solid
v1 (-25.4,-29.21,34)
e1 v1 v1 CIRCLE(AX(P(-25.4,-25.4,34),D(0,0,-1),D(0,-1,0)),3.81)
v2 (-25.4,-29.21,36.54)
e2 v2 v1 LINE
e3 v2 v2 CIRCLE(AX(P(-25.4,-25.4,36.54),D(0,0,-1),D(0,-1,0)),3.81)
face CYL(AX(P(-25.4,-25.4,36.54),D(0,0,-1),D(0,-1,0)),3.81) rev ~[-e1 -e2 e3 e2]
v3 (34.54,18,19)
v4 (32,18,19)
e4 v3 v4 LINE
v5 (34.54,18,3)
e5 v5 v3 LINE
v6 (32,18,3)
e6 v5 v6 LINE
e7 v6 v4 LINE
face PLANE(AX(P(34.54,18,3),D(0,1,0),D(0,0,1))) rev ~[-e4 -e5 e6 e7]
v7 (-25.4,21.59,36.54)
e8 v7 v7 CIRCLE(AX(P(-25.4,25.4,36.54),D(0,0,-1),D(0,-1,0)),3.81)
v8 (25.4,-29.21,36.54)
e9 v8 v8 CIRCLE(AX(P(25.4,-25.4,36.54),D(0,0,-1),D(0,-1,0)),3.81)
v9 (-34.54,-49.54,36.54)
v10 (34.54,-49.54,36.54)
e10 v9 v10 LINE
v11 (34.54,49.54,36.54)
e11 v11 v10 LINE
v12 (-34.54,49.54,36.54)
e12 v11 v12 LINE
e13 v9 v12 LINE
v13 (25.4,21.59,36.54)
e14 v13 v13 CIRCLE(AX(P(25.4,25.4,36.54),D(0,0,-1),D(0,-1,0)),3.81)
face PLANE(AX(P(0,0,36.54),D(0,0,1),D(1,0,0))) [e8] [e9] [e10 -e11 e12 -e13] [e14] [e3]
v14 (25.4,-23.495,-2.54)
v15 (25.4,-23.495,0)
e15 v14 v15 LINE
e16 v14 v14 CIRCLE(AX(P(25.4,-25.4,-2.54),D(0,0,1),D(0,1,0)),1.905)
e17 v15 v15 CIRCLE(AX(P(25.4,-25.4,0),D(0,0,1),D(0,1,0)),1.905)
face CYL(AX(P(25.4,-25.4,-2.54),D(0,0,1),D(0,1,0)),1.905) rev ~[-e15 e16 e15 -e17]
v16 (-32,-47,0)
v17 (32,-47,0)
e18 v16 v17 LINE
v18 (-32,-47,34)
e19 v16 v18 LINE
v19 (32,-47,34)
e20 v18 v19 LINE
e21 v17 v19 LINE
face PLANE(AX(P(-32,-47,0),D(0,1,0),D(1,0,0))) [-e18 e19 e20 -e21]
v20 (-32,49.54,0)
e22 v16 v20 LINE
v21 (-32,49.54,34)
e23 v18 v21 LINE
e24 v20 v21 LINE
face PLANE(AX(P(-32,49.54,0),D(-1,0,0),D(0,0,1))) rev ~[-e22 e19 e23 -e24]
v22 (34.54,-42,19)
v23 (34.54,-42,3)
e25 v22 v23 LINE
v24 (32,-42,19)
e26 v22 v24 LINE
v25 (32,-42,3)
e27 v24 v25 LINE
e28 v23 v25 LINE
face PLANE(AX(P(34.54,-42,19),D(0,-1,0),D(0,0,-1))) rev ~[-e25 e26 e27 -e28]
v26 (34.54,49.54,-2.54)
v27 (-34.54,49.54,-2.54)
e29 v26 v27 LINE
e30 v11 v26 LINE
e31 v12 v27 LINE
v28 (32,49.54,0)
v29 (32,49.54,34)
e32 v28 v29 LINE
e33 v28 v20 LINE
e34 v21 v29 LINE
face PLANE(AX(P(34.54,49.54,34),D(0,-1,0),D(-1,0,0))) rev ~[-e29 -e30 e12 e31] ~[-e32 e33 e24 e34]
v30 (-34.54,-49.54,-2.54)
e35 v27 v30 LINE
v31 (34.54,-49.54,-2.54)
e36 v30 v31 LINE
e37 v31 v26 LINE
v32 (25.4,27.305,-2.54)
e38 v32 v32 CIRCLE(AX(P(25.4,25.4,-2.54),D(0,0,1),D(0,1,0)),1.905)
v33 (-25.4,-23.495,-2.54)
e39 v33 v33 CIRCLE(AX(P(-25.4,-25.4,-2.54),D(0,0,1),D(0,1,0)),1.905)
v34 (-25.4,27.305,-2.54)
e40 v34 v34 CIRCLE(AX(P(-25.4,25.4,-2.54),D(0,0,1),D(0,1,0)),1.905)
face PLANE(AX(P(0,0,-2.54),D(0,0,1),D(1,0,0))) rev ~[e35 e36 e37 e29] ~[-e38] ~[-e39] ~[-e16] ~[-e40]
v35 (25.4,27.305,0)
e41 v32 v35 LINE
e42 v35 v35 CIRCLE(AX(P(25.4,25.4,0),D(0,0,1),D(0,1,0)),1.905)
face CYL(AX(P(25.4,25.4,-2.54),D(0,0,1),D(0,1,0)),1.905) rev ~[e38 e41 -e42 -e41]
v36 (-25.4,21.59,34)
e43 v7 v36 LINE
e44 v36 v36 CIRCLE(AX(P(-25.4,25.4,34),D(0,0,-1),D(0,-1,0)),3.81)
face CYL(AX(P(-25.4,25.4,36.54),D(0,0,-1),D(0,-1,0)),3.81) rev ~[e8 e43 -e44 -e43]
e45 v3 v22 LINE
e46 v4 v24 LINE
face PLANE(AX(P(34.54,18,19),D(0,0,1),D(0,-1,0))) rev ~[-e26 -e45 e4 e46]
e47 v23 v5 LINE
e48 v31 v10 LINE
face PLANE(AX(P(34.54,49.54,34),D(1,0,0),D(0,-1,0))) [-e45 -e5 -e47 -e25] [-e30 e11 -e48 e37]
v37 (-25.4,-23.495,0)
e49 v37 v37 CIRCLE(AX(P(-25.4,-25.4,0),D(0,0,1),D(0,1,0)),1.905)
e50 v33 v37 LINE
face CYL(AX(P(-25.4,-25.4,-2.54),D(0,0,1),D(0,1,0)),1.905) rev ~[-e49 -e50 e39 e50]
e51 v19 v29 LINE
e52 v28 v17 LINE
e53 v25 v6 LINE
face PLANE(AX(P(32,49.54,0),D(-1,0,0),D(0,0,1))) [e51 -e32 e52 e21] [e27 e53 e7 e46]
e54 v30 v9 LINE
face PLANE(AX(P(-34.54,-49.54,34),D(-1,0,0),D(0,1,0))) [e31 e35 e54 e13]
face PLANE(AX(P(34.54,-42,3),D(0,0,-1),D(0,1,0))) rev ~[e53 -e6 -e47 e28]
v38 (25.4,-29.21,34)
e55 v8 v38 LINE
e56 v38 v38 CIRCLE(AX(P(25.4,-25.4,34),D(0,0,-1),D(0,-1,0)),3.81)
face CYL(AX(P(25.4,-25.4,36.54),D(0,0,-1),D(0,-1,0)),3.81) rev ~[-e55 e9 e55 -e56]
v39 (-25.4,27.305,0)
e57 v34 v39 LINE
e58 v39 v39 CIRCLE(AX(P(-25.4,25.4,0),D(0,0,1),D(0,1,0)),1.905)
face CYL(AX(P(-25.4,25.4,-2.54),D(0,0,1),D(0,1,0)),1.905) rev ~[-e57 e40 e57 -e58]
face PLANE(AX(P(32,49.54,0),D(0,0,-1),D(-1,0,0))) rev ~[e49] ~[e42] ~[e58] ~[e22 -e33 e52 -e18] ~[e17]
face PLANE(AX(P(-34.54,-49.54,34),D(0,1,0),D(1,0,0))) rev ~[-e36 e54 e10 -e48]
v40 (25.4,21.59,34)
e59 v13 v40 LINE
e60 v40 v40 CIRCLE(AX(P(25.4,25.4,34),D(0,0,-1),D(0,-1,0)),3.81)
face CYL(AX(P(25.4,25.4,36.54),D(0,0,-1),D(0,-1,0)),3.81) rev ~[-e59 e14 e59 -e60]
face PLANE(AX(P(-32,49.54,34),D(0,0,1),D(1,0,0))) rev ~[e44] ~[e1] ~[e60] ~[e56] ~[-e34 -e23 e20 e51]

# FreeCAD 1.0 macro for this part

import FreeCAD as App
import Part
import Sketcher
from FreeCAD import Vector
Q = App.Units.Quantity

doc = App.newDocument("Part")
params = doc.addObject("Spreadsheet::Sheet", "Params")
for row, (alias, value) in enumerate([
    ("sketch1_width", "69.08 mm"),
    ("sketch1_height", "99.08 mm"),
    ("pad1_length", "2.54 mm"),
    ("sketch2_width", "64 mm"),
    ("sketch2_height", "94 mm"),
    ("sketch2_width2", "69.08 mm"),
    ("sketch2_height2", "99.08 mm"),
    ("pad2_length", "34 mm"),
    ("sketch3_width", "69.08 mm"),
    ("sketch3_height", "99.08 mm"),
    ("pad3_length", "2.54 mm"),
    ("sketch4_width", "64 mm"),
    ("sketch4_height", "34 mm"),
    ("pocket1_length", "2.54 mm"),
    ("sketch5_width", "60 mm"),
    ("sketch5_height", "16 mm"),
    ("pocket2_length", "2.54 mm"),
    ("sketch6_diameter", "3.81 mm"),
    ("hole_diameter", "3.81 mm"),
    ("sketch7_diameter", "7.62 mm"),
    ("hole2_diameter", "7.62 mm"),
    ("hole2_depth", "2.54 mm"),
], start=1):
    params.set(f"A{row}", alias)
    params.set(f"B{row}", "=" + value)
    params.setAlias(f"B{row}", alias)

body = doc.addObject("PartDesign::Body", "Body")

# Sketch on XY plane
sketch1 = doc.addObject("Sketcher::SketchObject", "Sketch")
body.addObject(sketch1)
sketch1.AttachmentSupport = (doc.XY_Plane, [""])
sketch1.MapMode = "FlatFace"
sketch1.addGeometry([
    Part.LineSegment(Vector(-35, 50, 0), Vector(-35, -50, 0)),
    Part.LineSegment(Vector(-35, -50, 0), Vector(35, -50, 0)),
    Part.LineSegment(Vector(35, -50, 0), Vector(35, 50, 0)),
    Part.LineSegment(Vector(35, 50, 0), Vector(-35, 50, 0)),
], False)
sketch1.addConstraint([
    Sketcher.Constraint("Coincident", 0, 2, 1, 1),
    Sketcher.Constraint("Coincident", 1, 2, 2, 1),
    Sketcher.Constraint("Coincident", 2, 2, 3, 1),
    Sketcher.Constraint("Coincident", 3, 2, 0, 1),
    Sketcher.Constraint("Vertical", 0),
    Sketcher.Constraint("Horizontal", 1),
    Sketcher.Constraint("Vertical", 2),
    Sketcher.Constraint("Horizontal", 3),
    Sketcher.Constraint("Symmetric", 0, 2, 2, 2, -1, 1),
    Sketcher.Constraint("DistanceX", 1, 1, 1, 2, Q("69.08 mm")),
    Sketcher.Constraint("DistanceY", 0, 2, 0, 1, Q("99.08 mm")),
])
sketch1.setExpression("Constraints[9]", "Params.sketch1_width")
sketch1.setExpression("Constraints[10]", "Params.sketch1_height")
pad1 = doc.addObject("PartDesign::Pad", "Pad")
body.addObject(pad1)
pad1.Profile = sketch1
pad1.setExpression("Length", "Params.pad1_length")
pad1.Reversed = True

# Sketch on XY plane
sketch2 = doc.addObject("Sketcher::SketchObject", "Sketch001")
body.addObject(sketch2)
sketch2.AttachmentSupport = (doc.XY_Plane, [""])
sketch2.MapMode = "FlatFace"
sketch2.addGeometry([
    Part.LineSegment(Vector(-35, 50, 0), Vector(-35, -50, 0)),  # 0
    Part.LineSegment(Vector(-35, -50, 0), Vector(35, -50, 0)),  # 1
    Part.LineSegment(Vector(35, -50, 0), Vector(35, 50, 0)),  # 2
    Part.LineSegment(Vector(35, 50, 0), Vector(-35, 50, 0)),  # 3
    Part.LineSegment(Vector(32, -47, 0), Vector(-32, -47, 0)),  # 4
    Part.LineSegment(Vector(-32, -47, 0), Vector(-32, 47, 0)),  # 5
    Part.LineSegment(Vector(-32, 47, 0), Vector(32, 47, 0)),  # 6
    Part.LineSegment(Vector(32, 47, 0), Vector(32, -47, 0)),  # 7
], False)
sketch2.addConstraint([
    Sketcher.Constraint("Coincident", 0, 2, 1, 1),
    Sketcher.Constraint("Coincident", 1, 2, 2, 1),
    Sketcher.Constraint("Coincident", 2, 2, 3, 1),
    Sketcher.Constraint("Coincident", 3, 2, 0, 1),
    Sketcher.Constraint("Coincident", 4, 2, 5, 1),
    Sketcher.Constraint("Coincident", 5, 2, 6, 1),
    Sketcher.Constraint("Coincident", 6, 2, 7, 1),
    Sketcher.Constraint("Coincident", 7, 2, 4, 1),
    Sketcher.Constraint("Vertical", 0),
    Sketcher.Constraint("Horizontal", 1),
    Sketcher.Constraint("Vertical", 2),
    Sketcher.Constraint("Horizontal", 3),
    Sketcher.Constraint("Horizontal", 4),
    Sketcher.Constraint("Vertical", 5),
    Sketcher.Constraint("Horizontal", 6),
    Sketcher.Constraint("Vertical", 7),
    Sketcher.Constraint("Symmetric", 0, 2, 2, 2, -1, 1),
    Sketcher.Constraint("Symmetric", 4, 2, 6, 2, -1, 1),
    Sketcher.Constraint("DistanceX", 4, 2, 4, 1, Q("64 mm")),
    Sketcher.Constraint("DistanceY", 5, 1, 5, 2, Q("94 mm")),
    Sketcher.Constraint("DistanceX", 1, 1, 1, 2, Q("69.08 mm")),
    Sketcher.Constraint("DistanceY", 0, 2, 0, 1, Q("99.08 mm")),
])
sketch2.setExpression("Constraints[18]", "Params.sketch2_width")
sketch2.setExpression("Constraints[19]", "Params.sketch2_height")
sketch2.setExpression("Constraints[20]", "Params.sketch2_width2")
sketch2.setExpression("Constraints[21]", "Params.sketch2_height2")
pad2 = doc.addObject("PartDesign::Pad", "Pad001")
body.addObject(pad2)
pad2.Profile = sketch2
pad2.setExpression("Length", "Params.pad2_length")

# Sketch on XY plane
sketch3 = doc.addObject("Sketcher::SketchObject", "Sketch002")
body.addObject(sketch3)
sketch3.AttachmentSupport = (doc.XY_Plane, [""])
sketch3.MapMode = "FlatFace"
sketch3.AttachmentOffset = App.Placement(Vector(0, 0, 34), App.Rotation())
sketch3.addGeometry([
    Part.LineSegment(Vector(-35, 50, 0), Vector(-35, -50, 0)),
    Part.LineSegment(Vector(-35, -50, 0), Vector(35, -50, 0)),
    Part.LineSegment(Vector(35, -50, 0), Vector(35, 50, 0)),
    Part.LineSegment(Vector(35, 50, 0), Vector(-35, 50, 0)),
], False)
sketch3.addConstraint([
    Sketcher.Constraint("Coincident", 0, 2, 1, 1),
    Sketcher.Constraint("Coincident", 1, 2, 2, 1),
    Sketcher.Constraint("Coincident", 2, 2, 3, 1),
    Sketcher.Constraint("Coincident", 3, 2, 0, 1),
    Sketcher.Constraint("Vertical", 0),
    Sketcher.Constraint("Horizontal", 1),
    Sketcher.Constraint("Vertical", 2),
    Sketcher.Constraint("Horizontal", 3),
    Sketcher.Constraint("Symmetric", 0, 2, 2, 2, -1, 1),
    Sketcher.Constraint("DistanceX", 1, 1, 1, 2, Q("69.08 mm")),
    Sketcher.Constraint("DistanceY", 0, 2, 0, 1, Q("99.08 mm")),
])
sketch3.setExpression("Constraints[9]", "Params.sketch3_width")
sketch3.setExpression("Constraints[10]", "Params.sketch3_height")
pad3 = doc.addObject("PartDesign::Pad", "Pad002")
body.addObject(pad3)
pad3.Profile = sketch3
pad3.setExpression("Length", "Params.pad3_length")

# Sketch on XZ plane
sketch4 = doc.addObject("Sketcher::SketchObject", "Sketch003")
body.addObject(sketch4)
sketch4.AttachmentSupport = (doc.XZ_Plane, [""])
sketch4.MapMode = "FlatFace"
sketch4.AttachmentOffset = App.Placement(Vector(0, 0, -49.54), App.Rotation())
sketch4.addGeometry([
    Part.LineSegment(Vector(32, 34, 0), Vector(32, 0, 0)),
    Part.LineSegment(Vector(32, 0, 0), Vector(-32, 0, 0)),
    Part.LineSegment(Vector(-32, 0, 0), Vector(-32, 34, 0)),
    Part.LineSegment(Vector(-32, 34, 0), Vector(32, 34, 0)),
], False)
sketch4.addConstraint([
    Sketcher.Constraint("Coincident", 0, 2, 1, 1),
    Sketcher.Constraint("Coincident", 1, 2, 2, 1),
    Sketcher.Constraint("Coincident", 2, 2, 3, 1),
    Sketcher.Constraint("Coincident", 3, 2, 0, 1),
    Sketcher.Constraint("Vertical", 0),
    Sketcher.Constraint("Horizontal", 1),
    Sketcher.Constraint("Vertical", 2),
    Sketcher.Constraint("Horizontal", 3),
    Sketcher.Constraint("Symmetric", 0, 2, 1, 2, -1, 1),
    Sketcher.Constraint("DistanceX", 1, 2, 1, 1, Q("64 mm")),
    Sketcher.Constraint("DistanceY", 0, 2, 0, 1, Q("34 mm")),
])
sketch4.setExpression("Constraints[9]", "Params.sketch4_width")
sketch4.setExpression("Constraints[10]", "Params.sketch4_height")
pocket1 = doc.addObject("PartDesign::Pocket", "Pocket")
body.addObject(pocket1)
pocket1.Profile = sketch4
pocket1.setExpression("Length", "Params.pocket1_length")
pocket1.Reversed = True

# Sketch on YZ plane
sketch5 = doc.addObject("Sketcher::SketchObject", "Sketch004")
body.addObject(sketch5)
sketch5.AttachmentSupport = (doc.YZ_Plane, [""])
sketch5.MapMode = "FlatFace"
sketch5.AttachmentOffset = App.Placement(Vector(0, 0, 34.54), App.Rotation())
sketch5.addGeometry([
    Part.LineSegment(Vector(18, 19, 0), Vector(-42, 19, 0)),
    Part.LineSegment(Vector(-42, 19, 0), Vector(-42, 3, 0)),
    Part.LineSegment(Vector(-42, 3, 0), Vector(18, 3, 0)),
    Part.LineSegment(Vector(18, 3, 0), Vector(18, 19, 0)),
], False)
sketch5.addConstraint([
    Sketcher.Constraint("Coincident", 0, 2, 1, 1),
    Sketcher.Constraint("Coincident", 1, 2, 2, 1),
    Sketcher.Constraint("Coincident", 2, 2, 3, 1),
    Sketcher.Constraint("Coincident", 3, 2, 0, 1),
    Sketcher.Constraint("Horizontal", 0),
    Sketcher.Constraint("Vertical", 1),
    Sketcher.Constraint("Horizontal", 2),
    Sketcher.Constraint("Vertical", 3),
    Sketcher.Constraint("DistanceY", -1, 1, 1, 2, Q("3 mm")),
    Sketcher.Constraint("DistanceX", 0, 2, 0, 1, Q("60 mm")),
    Sketcher.Constraint("DistanceY", 1, 2, 1, 1, Q("16 mm")),
    Sketcher.Constraint("DistanceX", 0, 2, -1, 1, Q("42 mm")),
])
sketch5.setExpression("Constraints[9]", "Params.sketch5_width")
sketch5.setExpression("Constraints[10]", "Params.sketch5_height")
pocket2 = doc.addObject("PartDesign::Pocket", "Pocket001")
body.addObject(pocket2)
pocket2.Profile = sketch5
pocket2.setExpression("Length", "Params.pocket2_length")

# Sketch on XY plane
sketch6 = doc.addObject("Sketcher::SketchObject", "Sketch005")
body.addObject(sketch6)
sketch6.AttachmentSupport = (doc.XY_Plane, [""])
sketch6.MapMode = "FlatFace"
sketch6.AttachmentOffset = App.Placement(Vector(0, 0, -2.54), App.Rotation())
sketch6.addGeometry([
    Part.Circle(Vector(25.4, 25.4, 0), Vector(0, 0, 1), 1.9),
    Part.Circle(Vector(-25.4, 25.4, 0), Vector(0, 0, 1), 1.9),
    Part.Circle(Vector(-25.4, -25.4, 0), Vector(0, 0, 1), 1.9),
    Part.Circle(Vector(25.4, -25.4, 0), Vector(0, 0, 1), 1.9),
], False)
sketch6.addConstraint([
    Sketcher.Constraint("Equal", 0, 1),
    Sketcher.Constraint("Equal", 1, 2),
    Sketcher.Constraint("Equal", 2, 3),
    Sketcher.Constraint("Symmetric", 0, 3, 2, 3, -1, 1),
    Sketcher.Constraint("Symmetric", 1, 3, 3, 3, -1, 1),
    Sketcher.Constraint("Symmetric", 0, 3, 1, 3, -2),
    Sketcher.Constraint("Diameter", 0, Q("3.81 mm")),
    Sketcher.Constraint("DistanceX", -1, 1, 0, 3, Q("25.4 mm")),
    Sketcher.Constraint("DistanceY", -1, 1, 0, 3, Q("25.4 mm")),
])
sketch6.setExpression("Constraints[6]", "Params.sketch6_diameter")
doc.recompute()
hole = doc.addObject("PartDesign::Hole", "Hole")
body.addObject(hole)
hole.Profile = sketch6
hole.ThreadType = "None"
hole.setExpression("Diameter", "Params.hole_diameter")
hole.DepthType = "ThroughAll"
hole.Reversed = True

# Sketch on XY plane
sketch7 = doc.addObject("Sketcher::SketchObject", "Sketch006")
body.addObject(sketch7)
sketch7.AttachmentSupport = (doc.XY_Plane, [""])
sketch7.MapMode = "FlatFace"
sketch7.AttachmentOffset = App.Placement(Vector(0, 0, 36.54), App.Rotation())
sketch7.addGeometry([
    Part.Circle(Vector(-25.4, 25.4, 0), Vector(0, 0, 1), 3.8),
    Part.Circle(Vector(25.4, 25.4, 0), Vector(0, 0, 1), 3.8),
    Part.Circle(Vector(25.4, -25.4, 0), Vector(0, 0, 1), 3.8),
    Part.Circle(Vector(-25.4, -25.4, 0), Vector(0, 0, 1), 3.8),
], False)
sketch7.addConstraint([
    Sketcher.Constraint("Equal", 0, 1),
    Sketcher.Constraint("Equal", 1, 2),
    Sketcher.Constraint("Equal", 2, 3),
    Sketcher.Constraint("Symmetric", 0, 3, 2, 3, -1, 1),
    Sketcher.Constraint("Symmetric", 1, 3, 3, 3, -1, 1),
    Sketcher.Constraint("Symmetric", 0, 3, 1, 3, -2),
    Sketcher.Constraint("Diameter", 0, Q("7.62 mm")),
    Sketcher.Constraint("DistanceX", 0, 3, -1, 1, Q("25.4 mm")),
    Sketcher.Constraint("DistanceY", -1, 1, 0, 3, Q("25.4 mm")),
])
sketch7.setExpression("Constraints[6]", "Params.sketch7_diameter")
doc.recompute()
hole2 = doc.addObject("PartDesign::Hole", "Hole001")
body.addObject(hole2)
hole2.Profile = sketch7
hole2.ThreadType = "None"
hole2.setExpression("Diameter", "Params.hole2_diameter")
hole2.DepthType = "Dimension"
hole2.setExpression("Depth", "Params.hole2_depth")
hole2.DrillPoint = "Flat"

doc.recompute()
